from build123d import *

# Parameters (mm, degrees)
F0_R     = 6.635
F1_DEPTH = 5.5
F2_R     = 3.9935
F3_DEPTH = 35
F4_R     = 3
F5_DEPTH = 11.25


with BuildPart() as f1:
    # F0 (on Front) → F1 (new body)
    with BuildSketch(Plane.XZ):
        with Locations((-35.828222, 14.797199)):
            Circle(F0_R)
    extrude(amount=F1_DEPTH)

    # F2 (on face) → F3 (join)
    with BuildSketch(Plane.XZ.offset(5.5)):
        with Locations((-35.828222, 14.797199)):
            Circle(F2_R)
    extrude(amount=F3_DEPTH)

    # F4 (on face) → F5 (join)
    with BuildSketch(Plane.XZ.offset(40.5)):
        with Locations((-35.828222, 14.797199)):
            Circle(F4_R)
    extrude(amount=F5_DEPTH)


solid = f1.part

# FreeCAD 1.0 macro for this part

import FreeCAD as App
import Part
import Sketcher

doc = App.newDocument("Part")
body = doc.addObject("PartDesign::Body", "Body")

sketch1 = doc.addObject("Sketcher::SketchObject", "Sketch")
body.addObject(sketch1)
sketch1.AttachmentSupport = (doc.XZ_Plane, [""])
sketch1.MapMode = "FlatFace"
sketch1.addGeometry(Part.Circle(App.Vector(-36, 15, 0), App.Vector(0, 0, 1), 7), False)
sketch1.addConstraint([
    Sketcher.Constraint("Diameter", 0, 13.27),
    Sketcher.Constraint("DistanceY", -1, 1, 0, 3, 14.797199),
    Sketcher.Constraint("DistanceX", 0, 3, -1, 1, 35.828222),
])
pad1 = doc.addObject("PartDesign::Pad", "Pad")
body.addObject(pad1)
pad1.Profile = sketch1
pad1.Length = 5.5

sketch2 = doc.addObject("Sketcher::SketchObject", "Sketch001")
body.addObject(sketch2)
sketch2.AttachmentSupport = (doc.XZ_Plane, [""])
sketch2.MapMode = "FlatFace"
sketch2.AttachmentOffset = App.Placement(App.Vector(0, 0, 5.5), App.Rotation())
sketch2.addGeometry(Part.Circle(App.Vector(-35.8, 14.8, 0), App.Vector(0, 0, 1), 4), False)
sketch2.addConstraint([
    Sketcher.Constraint("Diameter", 0, 7.987),
    Sketcher.Constraint("DistanceY", -1, 1, 0, 3, 14.797199),
    Sketcher.Constraint("DistanceX", 0, 3, -1, 1, 35.828222),
])
pad2 = doc.addObject("PartDesign::Pad", "Pad001")
body.addObject(pad2)
pad2.Profile = sketch2
pad2.Length = 35

sketch3 = doc.addObject("Sketcher::SketchObject", "Sketch002")
body.addObject(sketch3)
sketch3.AttachmentSupport = (doc.XZ_Plane, [""])
sketch3.MapMode = "FlatFace"
sketch3.AttachmentOffset = App.Placement(App.Vector(0, 0, 40.5), App.Rotation())
sketch3.addGeometry(Part.Circle(App.Vector(-35.8, 14.8, 0), App.Vector(0, 0, 1), 3), False)
sketch3.addConstraint([
    Sketcher.Constraint("Diameter", 0, 6.0),
    Sketcher.Constraint("DistanceY", -1, 1, 0, 3, 14.797199),
    Sketcher.Constraint("DistanceX", 0, 3, -1, 1, 35.828222),
])
pad3 = doc.addObject("PartDesign::Pad", "Pad002")
body.addObject(pad3)
pad3.Profile = sketch3
pad3.Length = 11.25

doc.recompute()
